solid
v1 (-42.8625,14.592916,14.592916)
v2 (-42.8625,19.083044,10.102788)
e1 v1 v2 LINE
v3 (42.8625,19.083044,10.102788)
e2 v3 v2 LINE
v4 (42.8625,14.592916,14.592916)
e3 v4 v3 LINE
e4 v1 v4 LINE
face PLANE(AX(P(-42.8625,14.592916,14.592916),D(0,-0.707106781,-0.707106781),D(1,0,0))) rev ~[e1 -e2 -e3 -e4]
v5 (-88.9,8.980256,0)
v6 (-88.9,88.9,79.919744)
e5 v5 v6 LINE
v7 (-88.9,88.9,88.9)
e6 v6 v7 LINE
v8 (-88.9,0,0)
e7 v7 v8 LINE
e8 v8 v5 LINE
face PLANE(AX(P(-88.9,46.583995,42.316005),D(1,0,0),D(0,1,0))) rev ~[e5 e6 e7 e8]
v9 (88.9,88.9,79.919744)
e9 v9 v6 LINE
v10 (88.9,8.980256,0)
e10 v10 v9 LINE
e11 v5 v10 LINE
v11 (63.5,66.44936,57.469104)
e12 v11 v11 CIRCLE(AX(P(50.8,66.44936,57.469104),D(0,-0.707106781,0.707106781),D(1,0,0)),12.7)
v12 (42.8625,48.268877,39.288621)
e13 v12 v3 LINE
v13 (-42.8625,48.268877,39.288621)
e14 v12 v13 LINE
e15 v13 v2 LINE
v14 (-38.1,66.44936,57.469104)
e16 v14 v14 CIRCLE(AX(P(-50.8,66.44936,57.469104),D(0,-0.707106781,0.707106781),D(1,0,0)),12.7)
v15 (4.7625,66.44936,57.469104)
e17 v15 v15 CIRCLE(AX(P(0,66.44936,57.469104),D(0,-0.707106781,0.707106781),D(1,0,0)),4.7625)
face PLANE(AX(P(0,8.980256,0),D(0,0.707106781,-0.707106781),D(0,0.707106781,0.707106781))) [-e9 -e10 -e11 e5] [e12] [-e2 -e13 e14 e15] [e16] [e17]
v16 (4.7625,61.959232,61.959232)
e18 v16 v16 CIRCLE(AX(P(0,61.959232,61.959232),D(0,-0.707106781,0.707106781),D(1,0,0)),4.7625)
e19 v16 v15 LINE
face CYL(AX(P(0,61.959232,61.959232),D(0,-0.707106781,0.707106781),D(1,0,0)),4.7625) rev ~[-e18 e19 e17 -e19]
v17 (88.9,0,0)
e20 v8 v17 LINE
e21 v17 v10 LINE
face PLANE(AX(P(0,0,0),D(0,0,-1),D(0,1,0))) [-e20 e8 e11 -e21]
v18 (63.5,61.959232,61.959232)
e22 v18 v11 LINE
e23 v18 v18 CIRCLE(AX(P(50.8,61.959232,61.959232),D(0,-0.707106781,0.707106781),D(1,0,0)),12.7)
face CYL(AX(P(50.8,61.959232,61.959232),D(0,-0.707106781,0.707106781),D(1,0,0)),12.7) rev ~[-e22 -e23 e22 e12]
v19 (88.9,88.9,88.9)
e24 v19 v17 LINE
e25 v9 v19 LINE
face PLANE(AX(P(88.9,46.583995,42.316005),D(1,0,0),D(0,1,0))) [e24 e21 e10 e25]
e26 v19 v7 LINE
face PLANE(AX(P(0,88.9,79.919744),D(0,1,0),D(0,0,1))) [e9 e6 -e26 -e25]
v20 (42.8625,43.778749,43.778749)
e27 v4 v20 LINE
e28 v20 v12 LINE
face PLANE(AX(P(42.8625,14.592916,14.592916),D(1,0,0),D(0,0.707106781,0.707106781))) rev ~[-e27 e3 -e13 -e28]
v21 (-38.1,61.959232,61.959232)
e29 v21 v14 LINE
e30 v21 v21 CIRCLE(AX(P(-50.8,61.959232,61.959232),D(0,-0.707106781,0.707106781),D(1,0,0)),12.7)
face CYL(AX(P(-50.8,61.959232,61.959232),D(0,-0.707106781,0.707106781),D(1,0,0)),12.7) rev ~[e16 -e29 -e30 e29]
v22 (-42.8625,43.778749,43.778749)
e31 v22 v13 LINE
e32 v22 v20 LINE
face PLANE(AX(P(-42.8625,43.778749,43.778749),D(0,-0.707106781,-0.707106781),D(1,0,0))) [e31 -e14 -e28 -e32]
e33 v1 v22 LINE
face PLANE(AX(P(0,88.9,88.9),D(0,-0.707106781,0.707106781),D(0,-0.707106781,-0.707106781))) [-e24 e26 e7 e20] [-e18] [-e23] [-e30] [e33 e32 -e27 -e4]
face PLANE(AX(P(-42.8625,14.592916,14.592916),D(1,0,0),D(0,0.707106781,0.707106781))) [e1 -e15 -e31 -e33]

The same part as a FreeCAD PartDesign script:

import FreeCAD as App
import Part
import Sketcher
from FreeCAD import Vector
Q = App.Units.Quantity


def add_polygon(sketch, points):
    """Adds a closed chain of lines whose ends are joined by coincident constraints."""
    first, n = sketch.GeometryCount, len(points)
    for a, b in zip(points, points[1:] + points[:1]):
        sketch.addGeometry(Part.LineSegment(App.Vector(*a, 0), App.Vector(*b, 0)), False)
    for i in range(n):
        sketch.addConstraint(Sketcher.Constraint("Coincident", first + i, 2, first + (i + 1) % n, 1))

doc = App.newDocument("Part")
body = doc.addObject("PartDesign::Body", "Body")

# Sketch on YZ plane
sketch1 = body.newObject("Sketcher::SketchObject", "Sketch")
sketch1.AttachmentSupport = (doc.getObject("YZ_Plane"), [""])
sketch1.MapMode = "FlatFace"
add_polygon(sketch1, [(89, 89), (0, 0), (9, 0), (89, 80)])  # lines 0-3
sketch1.addConstraint([
    Sketcher.Constraint("Horizontal", 1),
    Sketcher.Constraint("Vertical", 3),
    Sketcher.Constraint("Coincident", 0, 2, -1, 1),
    Sketcher.Constraint("Parallel", 0, 2),
    Sketcher.Constraint("Equal", 1, 3),
    Sketcher.Constraint("DistanceX", -1, 1, 2, 2, Q("3.5 in")),
    Sketcher.Constraint("DistanceX", 1, 1, 1, 2, 8.980256),
])
pad1 = body.newObject("PartDesign::Pad", "Pad")
pad1.Profile = sketch1
pad1.Length = Q("7 in")
pad1.Midplane = True

# Sketch on an angled plane
sketch2 = body.newObject("Sketcher::SketchObject", "Sketch001")
sketch2.Placement = App.Placement(Vector(0, 0, 0), App.Rotation(Vector(1, 0, 0), Vector(0, 0.707106781, 0.707106781), Vector(0, -0.707106781, 0.707106781), "ZXY"))
sketch2.addGeometry(Part.Circle(Vector(50.8, 87.6, 0), Vector(0, 0, 1), 12.7), False)  # 0
sketch2.addGeometry(Part.Circle(Vector(-50.8, 87.6, 0), Vector(0, 0, 1), 12.7), False)  # 1
add_polygon(sketch2, [(-42.9, 61.9), (-42.9, 20.6), (42.9, 20.6), (42.9, 61.9)])  # lines 2-5
sketch2.addGeometry(Part.Circle(Vector(0, 87.6, 0), Vector(0, 0, 1), 4.8), False)  # 6
sketch2.addConstraint([
    Sketcher.Constraint("Vertical", 2),
    Sketcher.Constraint("Horizontal", 3),
    Sketcher.Constraint("Vertical", 4),
    Sketcher.Constraint("Horizontal", 5),
    Sketcher.Constraint("Equal", 0, 1),
    Sketcher.Constraint("Symmetric", 0, 3, 1, 3, -2),
    Sketcher.Constraint("PointOnObject", 6, 3, -2),
    Sketcher.Constraint("Horizontal", 1, 3, 6, 3),
    Sketcher.Constraint("Diameter", 0, Q("1 in")),
    Sketcher.Constraint("Diameter", 6, Q("0.375 in")),
    Sketcher.Constraint("DistanceX", -1, 1, 0, 3, Q("2 in")),
    Sketcher.Constraint("DistanceX", 3, 1, 3, 2, Q("3.375 in")),
    Sketcher.Constraint("DistanceY", 2, 2, 2, 1, Q("1.625 in")),
    Sketcher.Constraint("DistanceX", 2, 2, -1, 1, Q("1.6875 in")),
    Sketcher.Constraint("DistanceY", -1, 1, 2, 2, Q("0.8125 in")),
    Sketcher.Constraint("DistanceY", -1, 1, 0, 3, 87.623586),
])
pocket1 = body.newObject("PartDesign::Pocket", "Pocket")
pocket1.Profile = sketch2
pocket1.Type = "ThroughAll"

doc.recompute()
